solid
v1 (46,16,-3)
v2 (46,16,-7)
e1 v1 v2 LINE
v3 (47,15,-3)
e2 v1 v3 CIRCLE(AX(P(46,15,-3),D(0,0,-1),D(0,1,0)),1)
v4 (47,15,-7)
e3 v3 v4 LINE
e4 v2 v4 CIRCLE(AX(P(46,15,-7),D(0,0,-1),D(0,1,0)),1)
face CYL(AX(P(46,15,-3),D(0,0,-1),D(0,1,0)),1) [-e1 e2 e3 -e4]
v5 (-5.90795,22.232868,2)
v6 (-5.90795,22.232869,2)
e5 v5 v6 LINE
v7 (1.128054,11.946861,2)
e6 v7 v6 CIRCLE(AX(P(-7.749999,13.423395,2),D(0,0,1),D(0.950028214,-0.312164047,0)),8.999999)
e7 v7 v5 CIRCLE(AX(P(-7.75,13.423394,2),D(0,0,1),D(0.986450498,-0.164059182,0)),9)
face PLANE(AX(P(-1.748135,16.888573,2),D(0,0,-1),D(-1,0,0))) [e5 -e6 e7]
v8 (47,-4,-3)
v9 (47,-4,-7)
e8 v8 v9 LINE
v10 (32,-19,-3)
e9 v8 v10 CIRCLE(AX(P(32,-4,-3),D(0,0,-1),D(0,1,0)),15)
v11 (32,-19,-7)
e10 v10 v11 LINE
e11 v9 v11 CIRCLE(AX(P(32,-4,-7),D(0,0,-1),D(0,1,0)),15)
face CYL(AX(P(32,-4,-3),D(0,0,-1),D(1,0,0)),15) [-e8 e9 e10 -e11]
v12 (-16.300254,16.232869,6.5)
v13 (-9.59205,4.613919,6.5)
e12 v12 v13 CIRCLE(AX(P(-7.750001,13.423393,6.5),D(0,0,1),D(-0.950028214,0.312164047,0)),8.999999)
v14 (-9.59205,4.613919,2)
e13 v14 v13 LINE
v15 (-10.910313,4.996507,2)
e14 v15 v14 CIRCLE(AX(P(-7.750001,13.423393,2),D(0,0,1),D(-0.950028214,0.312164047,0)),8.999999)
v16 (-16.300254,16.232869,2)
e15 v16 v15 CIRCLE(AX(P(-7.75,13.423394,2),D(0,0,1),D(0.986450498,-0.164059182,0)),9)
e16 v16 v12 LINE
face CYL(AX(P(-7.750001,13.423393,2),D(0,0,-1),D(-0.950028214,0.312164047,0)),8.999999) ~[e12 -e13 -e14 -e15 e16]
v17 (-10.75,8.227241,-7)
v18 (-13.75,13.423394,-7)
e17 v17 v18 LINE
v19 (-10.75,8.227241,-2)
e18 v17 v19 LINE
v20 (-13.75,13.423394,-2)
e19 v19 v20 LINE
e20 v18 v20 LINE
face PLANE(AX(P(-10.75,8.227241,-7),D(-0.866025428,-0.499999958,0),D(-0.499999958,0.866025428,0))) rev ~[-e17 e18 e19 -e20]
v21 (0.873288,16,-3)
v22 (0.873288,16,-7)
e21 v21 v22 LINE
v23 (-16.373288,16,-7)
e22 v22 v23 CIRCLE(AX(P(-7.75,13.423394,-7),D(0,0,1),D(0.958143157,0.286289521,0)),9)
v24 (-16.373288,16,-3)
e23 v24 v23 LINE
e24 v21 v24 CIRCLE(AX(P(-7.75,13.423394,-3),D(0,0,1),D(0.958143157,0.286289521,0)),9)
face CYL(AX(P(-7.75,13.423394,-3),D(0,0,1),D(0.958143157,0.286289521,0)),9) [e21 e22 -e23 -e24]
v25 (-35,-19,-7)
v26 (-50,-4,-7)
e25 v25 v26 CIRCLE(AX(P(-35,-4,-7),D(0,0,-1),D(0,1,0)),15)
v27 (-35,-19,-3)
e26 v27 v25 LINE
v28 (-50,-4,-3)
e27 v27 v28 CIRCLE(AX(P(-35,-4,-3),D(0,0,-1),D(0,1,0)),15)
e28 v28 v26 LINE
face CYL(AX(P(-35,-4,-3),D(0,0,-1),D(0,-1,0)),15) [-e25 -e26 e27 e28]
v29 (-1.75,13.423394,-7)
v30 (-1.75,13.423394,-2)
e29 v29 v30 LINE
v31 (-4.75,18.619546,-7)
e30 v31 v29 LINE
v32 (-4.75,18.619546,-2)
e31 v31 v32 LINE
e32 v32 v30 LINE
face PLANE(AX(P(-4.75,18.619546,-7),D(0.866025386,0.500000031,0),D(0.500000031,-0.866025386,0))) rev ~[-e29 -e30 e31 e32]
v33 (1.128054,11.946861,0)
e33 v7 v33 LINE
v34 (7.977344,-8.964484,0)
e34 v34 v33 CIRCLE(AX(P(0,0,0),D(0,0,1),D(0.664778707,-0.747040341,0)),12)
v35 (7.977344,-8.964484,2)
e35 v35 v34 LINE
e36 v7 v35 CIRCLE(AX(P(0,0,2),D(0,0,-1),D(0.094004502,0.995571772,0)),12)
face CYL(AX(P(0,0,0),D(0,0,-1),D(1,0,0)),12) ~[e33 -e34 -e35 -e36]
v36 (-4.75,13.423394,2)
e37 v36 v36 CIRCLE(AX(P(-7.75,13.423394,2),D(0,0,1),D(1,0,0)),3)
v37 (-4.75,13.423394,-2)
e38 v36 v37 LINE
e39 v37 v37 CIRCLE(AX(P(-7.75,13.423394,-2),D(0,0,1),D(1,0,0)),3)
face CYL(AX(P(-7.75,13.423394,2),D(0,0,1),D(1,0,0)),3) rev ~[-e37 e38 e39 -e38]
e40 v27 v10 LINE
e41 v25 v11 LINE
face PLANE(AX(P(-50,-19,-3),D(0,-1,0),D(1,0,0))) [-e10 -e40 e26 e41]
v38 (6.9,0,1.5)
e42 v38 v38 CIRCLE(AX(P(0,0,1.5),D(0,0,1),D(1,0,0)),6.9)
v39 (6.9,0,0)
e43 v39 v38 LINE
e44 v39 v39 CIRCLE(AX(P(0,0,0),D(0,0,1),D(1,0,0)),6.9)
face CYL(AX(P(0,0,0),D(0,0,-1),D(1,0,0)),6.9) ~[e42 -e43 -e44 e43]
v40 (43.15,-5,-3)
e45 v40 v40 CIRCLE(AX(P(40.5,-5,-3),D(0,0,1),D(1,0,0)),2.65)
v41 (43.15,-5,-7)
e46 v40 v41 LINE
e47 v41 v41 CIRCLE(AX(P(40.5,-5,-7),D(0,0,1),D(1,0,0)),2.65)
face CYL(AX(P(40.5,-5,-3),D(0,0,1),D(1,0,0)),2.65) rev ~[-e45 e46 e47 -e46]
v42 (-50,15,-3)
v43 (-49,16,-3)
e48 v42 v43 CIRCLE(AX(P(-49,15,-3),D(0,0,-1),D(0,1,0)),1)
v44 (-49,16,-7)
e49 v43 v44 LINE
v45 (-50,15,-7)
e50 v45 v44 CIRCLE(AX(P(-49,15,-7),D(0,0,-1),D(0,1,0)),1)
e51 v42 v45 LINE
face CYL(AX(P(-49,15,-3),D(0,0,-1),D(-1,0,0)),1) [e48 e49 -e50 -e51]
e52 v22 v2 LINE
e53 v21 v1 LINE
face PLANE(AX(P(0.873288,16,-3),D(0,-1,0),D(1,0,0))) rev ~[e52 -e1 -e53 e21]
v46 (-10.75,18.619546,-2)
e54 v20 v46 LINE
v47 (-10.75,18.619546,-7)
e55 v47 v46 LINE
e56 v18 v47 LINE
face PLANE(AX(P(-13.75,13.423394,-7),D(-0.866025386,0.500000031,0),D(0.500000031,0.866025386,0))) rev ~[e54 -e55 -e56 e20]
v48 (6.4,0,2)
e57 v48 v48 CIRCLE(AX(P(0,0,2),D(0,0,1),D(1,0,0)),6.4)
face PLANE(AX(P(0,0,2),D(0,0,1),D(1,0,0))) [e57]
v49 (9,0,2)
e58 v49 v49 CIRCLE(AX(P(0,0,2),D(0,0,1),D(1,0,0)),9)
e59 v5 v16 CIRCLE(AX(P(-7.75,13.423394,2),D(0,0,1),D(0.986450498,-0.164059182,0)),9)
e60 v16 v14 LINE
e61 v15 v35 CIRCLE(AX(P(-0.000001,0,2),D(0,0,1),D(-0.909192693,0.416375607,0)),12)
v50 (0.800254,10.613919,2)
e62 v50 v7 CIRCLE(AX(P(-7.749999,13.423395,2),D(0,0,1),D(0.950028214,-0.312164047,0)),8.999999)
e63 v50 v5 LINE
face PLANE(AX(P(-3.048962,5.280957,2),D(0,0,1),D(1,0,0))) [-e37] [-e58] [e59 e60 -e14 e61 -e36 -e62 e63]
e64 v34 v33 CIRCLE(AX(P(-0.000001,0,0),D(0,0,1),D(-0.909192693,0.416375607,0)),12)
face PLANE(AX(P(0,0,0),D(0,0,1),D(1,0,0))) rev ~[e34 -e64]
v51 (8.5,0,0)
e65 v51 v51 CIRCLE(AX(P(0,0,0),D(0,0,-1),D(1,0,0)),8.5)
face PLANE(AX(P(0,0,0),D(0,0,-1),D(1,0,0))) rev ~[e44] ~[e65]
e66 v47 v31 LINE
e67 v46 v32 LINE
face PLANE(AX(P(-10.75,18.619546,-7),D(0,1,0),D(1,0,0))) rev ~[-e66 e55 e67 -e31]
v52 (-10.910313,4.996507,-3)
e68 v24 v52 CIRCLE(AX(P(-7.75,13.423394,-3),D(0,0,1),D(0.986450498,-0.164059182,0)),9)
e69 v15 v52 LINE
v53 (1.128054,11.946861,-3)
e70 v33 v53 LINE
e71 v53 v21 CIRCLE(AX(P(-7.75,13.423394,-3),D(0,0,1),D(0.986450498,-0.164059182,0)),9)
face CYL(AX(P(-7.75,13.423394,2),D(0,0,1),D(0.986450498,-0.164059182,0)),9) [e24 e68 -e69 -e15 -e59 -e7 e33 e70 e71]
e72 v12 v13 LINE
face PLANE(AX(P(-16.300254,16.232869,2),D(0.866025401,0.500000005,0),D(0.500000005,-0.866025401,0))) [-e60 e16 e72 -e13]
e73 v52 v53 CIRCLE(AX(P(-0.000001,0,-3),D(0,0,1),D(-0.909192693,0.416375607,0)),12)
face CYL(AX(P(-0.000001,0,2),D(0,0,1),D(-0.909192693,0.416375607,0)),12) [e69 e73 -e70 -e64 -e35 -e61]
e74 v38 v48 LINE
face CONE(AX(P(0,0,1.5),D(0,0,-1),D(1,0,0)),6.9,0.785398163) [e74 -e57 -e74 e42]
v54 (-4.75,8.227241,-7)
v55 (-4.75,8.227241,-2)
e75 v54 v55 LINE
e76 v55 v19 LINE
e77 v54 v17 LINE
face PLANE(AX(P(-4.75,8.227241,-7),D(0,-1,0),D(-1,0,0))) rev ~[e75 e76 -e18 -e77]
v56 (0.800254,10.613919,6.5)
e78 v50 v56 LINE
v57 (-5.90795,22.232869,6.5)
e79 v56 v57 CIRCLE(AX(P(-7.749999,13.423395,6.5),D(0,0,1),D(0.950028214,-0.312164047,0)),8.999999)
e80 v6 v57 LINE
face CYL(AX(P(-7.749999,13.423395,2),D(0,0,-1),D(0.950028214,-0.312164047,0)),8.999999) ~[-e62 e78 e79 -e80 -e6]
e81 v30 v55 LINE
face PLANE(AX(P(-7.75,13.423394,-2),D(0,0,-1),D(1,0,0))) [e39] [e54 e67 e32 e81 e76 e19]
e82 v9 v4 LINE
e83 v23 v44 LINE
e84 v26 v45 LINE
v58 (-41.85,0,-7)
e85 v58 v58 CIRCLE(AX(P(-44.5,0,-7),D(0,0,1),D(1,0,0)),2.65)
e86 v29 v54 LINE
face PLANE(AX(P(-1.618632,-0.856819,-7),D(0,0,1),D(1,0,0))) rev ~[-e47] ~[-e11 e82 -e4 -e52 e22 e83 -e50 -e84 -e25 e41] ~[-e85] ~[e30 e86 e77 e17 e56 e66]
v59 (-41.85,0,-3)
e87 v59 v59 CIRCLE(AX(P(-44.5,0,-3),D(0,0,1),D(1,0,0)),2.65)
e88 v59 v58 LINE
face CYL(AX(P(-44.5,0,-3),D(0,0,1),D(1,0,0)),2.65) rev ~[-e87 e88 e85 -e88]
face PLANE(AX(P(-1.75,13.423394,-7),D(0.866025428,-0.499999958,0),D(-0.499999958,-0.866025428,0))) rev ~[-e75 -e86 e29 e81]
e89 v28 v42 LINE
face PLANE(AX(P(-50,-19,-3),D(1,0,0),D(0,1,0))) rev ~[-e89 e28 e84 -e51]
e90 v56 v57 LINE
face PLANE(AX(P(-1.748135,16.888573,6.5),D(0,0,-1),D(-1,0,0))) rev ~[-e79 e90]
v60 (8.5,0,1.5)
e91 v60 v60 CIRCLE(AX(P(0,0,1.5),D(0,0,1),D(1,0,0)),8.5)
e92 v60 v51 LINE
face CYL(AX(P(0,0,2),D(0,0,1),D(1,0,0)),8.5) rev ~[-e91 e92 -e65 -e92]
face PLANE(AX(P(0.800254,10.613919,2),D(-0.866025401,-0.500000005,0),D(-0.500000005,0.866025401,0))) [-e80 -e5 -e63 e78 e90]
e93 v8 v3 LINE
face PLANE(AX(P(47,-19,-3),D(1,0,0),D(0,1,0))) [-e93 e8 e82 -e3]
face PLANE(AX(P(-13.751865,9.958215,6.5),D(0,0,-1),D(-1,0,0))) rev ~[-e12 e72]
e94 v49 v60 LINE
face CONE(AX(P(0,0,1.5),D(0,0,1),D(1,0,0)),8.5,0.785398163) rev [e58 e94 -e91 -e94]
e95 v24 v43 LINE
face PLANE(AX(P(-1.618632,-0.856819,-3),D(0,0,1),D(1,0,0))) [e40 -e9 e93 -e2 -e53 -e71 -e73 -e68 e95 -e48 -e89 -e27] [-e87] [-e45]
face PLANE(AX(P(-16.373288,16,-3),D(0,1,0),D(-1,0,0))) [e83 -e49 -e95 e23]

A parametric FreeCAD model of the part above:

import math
import FreeCAD as App
import Part
import Sketcher
Q = App.Units.Quantity


def edges_at(feature, points):
    """Names of the edges that pass closest to the given points."""
    edges = feature.Shape.Edges
    near = lambda p: min(range(len(edges)), key=lambda i: edges[i].distToShape(Part.Vertex(*p))[0])
    return sorted({f"Edge{near(p) + 1}" for p in points})


def add_polygon(sketch, points):
    """Adds a closed chain of lines whose ends are joined by coincident constraints."""
    first, n = sketch.GeometryCount, len(points)
    for a, b in zip(points, points[1:] + points[:1]):
        sketch.addGeometry(Part.LineSegment(App.Vector(*a, 0), App.Vector(*b, 0)), False)
    for i in range(n):
        sketch.addConstraint(Sketcher.Constraint("Coincident", first + i, 2, first + (i + 1) % n, 1))

doc = App.newDocument("Part")
body = doc.addObject("PartDesign::Body", "Body")

# Sketch on XY plane
sketch1 = body.newObject("Sketcher::SketchObject", "Sketch")
sketch1.AttachmentSupport = (doc.getObject("XY_Plane"), [""])
sketch1.MapMode = "FlatFace"
sketch1.addGeometry([
    Part.Circle(App.Vector(0, 0, 0), App.Vector(0, 0, 1), 12),
    Part.Circle(App.Vector(0, 0, 0), App.Vector(0, 0, 1), 8),
], False)
sketch1.addConstraint([
    Sketcher.Constraint("Coincident", 0, 3, -1, 1),
    Sketcher.Constraint("Coincident", 1, 3, -1, 1),
    Sketcher.Constraint("Diameter", 0, 24.0),
    Sketcher.Constraint("Diameter", 1, 17.0),
])
pad1 = body.newObject("PartDesign::Pad", "Pad")
pad1.Profile = sketch1
pad1.Length = 2

# Sketch on XY plane
sketch2 = body.newObject("Sketcher::SketchObject", "Sketch001")
sketch2.AttachmentSupport = (doc.getObject("XY_Plane"), [""])
sketch2.MapMode = "FlatFace"
sketch2.AttachmentOffset = App.Placement(App.Vector(0, 0, 2), App.Rotation())
sketch2.addGeometry([
    Part.ArcOfCircle(Part.Circle(App.Vector(-7.8, 13.4, 0), App.Vector(0, 0, 1), 9), math.radians(-9), math.radians(249)),
    Part.ArcOfCircle(Part.Circle(App.Vector(0, 0, 0), App.Vector(0, 0, 1), 12), math.radians(155), math.radians(445)),
    Part.Circle(App.Vector(0, 0, 0), App.Vector(0, 0, 1), 8.5),
    Part.Circle(App.Vector(-7.8, 13.4, 0), App.Vector(0, 0, 1), 3),
], False)
sketch2.addConstraint([
    Sketcher.Constraint("Coincident", 0, 1, 1, 2),
    Sketcher.Constraint("Coincident", 1, 1, 0, 2),
    Sketcher.Constraint("Coincident", 1, 3, -1, 1),
    Sketcher.Constraint("Coincident", 2, 3, -1, 1),
    Sketcher.Constraint("Coincident", 3, 3, 0, 3),
    Sketcher.Constraint("Diameter", 2, 17.0),
    Sketcher.Constraint("Diameter", 3, 6.0),
    Sketcher.Constraint("Radius", 0, 9.0),
    Sketcher.Constraint("Radius", 1, 12.0),
    Sketcher.Constraint("DistanceX", 0, 3, -1, 1, 7.75),
    Sketcher.Constraint("DistanceY", -1, 1, 0, 3, 13.423394),
])
pad2 = body.newObject("PartDesign::Pad", "Pad001")
pad2.Profile = sketch2
pad2.Length = 5
pad2.Reversed = True

# Sketch on XY plane
sketch3 = body.newObject("Sketcher::SketchObject", "Sketch002")
sketch3.AttachmentSupport = (doc.getObject("XY_Plane"), [""])
sketch3.MapMode = "FlatFace"
sketch3.AttachmentOffset = App.Placement(App.Vector(0, 0, -3), App.Rotation())
sketch3.addGeometry(Part.Circle(App.Vector(0, 0, 0), App.Vector(0, 0, 1), 8), False)
sketch3.addConstraint([
    Sketcher.Constraint("Coincident", 0, 3, -1, 1),
    Sketcher.Constraint("Diameter", 0, 17.0),
])
pad3 = body.newObject("PartDesign::Pad", "Pad002")
pad3.Profile = sketch3
pad3.Length = 3

# Sketch on XY plane
sketch4 = body.newObject("Sketcher::SketchObject", "Sketch003")
sketch4.AttachmentSupport = (doc.getObject("XY_Plane"), [""])
sketch4.MapMode = "FlatFace"
sketch4.addGeometry(Part.Circle(App.Vector(0, 0, 0), App.Vector(0, 0, 1), 7), False)
sketch4.addConstraint([
    Sketcher.Constraint("Coincident", 0, 3, -1, 1),
    Sketcher.Constraint("Diameter", 0, 13.8),
])
pad4 = body.newObject("PartDesign::Pad", "Pad003")
pad4.Profile = sketch4
pad4.Length = 2

# Sketch on XY plane
sketch5 = body.newObject("Sketcher::SketchObject", "Sketch004")
sketch5.AttachmentSupport = (doc.getObject("XY_Plane"), [""])
sketch5.MapMode = "FlatFace"
sketch5.AttachmentOffset = App.Placement(App.Vector(0, 0, 2), App.Rotation())
sketch5.addGeometry([
    Part.LineSegment(App.Vector(-10, 5, 0), App.Vector(-16, 16, 0)),
    Part.ArcOfCircle(Part.Circle(App.Vector(-8, 13, 0), App.Vector(0, 0, 1), 9), math.radians(162), math.radians(258)),
    Part.LineSegment(App.Vector(-6, 22, 0), App.Vector(1, 11, 0)),
    Part.ArcOfCircle(Part.Circle(App.Vector(-8, 13, 0), App.Vector(0, 0, 1), 9), math.radians(-18), math.radians(78)),
], False)
sketch5.addConstraint([
    Sketcher.Constraint("Coincident", 0, 1, 1, 2),
    Sketcher.Constraint("Coincident", 1, 1, 0, 2),
    Sketcher.Constraint("Coincident", 2, 1, 3, 2),
    Sketcher.Constraint("Coincident", 3, 1, 2, 2),
    Sketcher.Constraint("Coincident", 3, 3, 1, 3),
    Sketcher.Constraint("Equal", 1, 3),
    Sketcher.Constraint("Parallel", 0, 2),
    Sketcher.Constraint("Equal", 0, 2),
    Sketcher.Constraint("Radius", 1, 8.999999),
    Sketcher.Constraint("Angle", 0, Q("120 deg")),
    Sketcher.Constraint("DistanceY", 1, 1, 2, 1, 6.0),
    Sketcher.Constraint("DistanceX", 1, 3, -1, 1, 7.750001),
    Sketcher.Constraint("DistanceY", -1, 1, 0, 1, 4.613919),
])
pad5 = body.newObject("PartDesign::Pad", "Pad004")
pad5.Profile = sketch5
pad5.Length = 4.5

# Sketch on XY plane
sketch6 = body.newObject("Sketcher::SketchObject", "Sketch005")
sketch6.AttachmentSupport = (doc.getObject("XY_Plane"), [""])
sketch6.MapMode = "FlatFace"
sketch6.AttachmentOffset = App.Placement(App.Vector(0, 0, -3), App.Rotation())
sketch6.addGeometry(Part.Circle(App.Vector(-7.8, 13.4, 0), App.Vector(0, 0, 1), 3), False)
sketch6.addConstraint([
    Sketcher.Constraint("Diameter", 0, 6.0),
    Sketcher.Constraint("DistanceX", 0, 3, -1, 1, 7.75),
    Sketcher.Constraint("DistanceY", -1, 1, 0, 3, 13.423394),
])
pocket1 = body.newObject("PartDesign::Pocket", "Pocket")
pocket1.Profile = sketch6
pocket1.Length = 5

# Sketch on XY plane
sketch7 = body.newObject("Sketcher::SketchObject", "Sketch006")
sketch7.AttachmentSupport = (doc.getObject("XY_Plane"), [""])
sketch7.MapMode = "FlatFace"
sketch7.AttachmentOffset = App.Placement(App.Vector(0, 0, -3), App.Rotation())
sketch7.addGeometry([
    Part.ArcOfCircle(Part.Circle(App.Vector(-7.8, 13.4, 0), App.Vector(0, 0, 1), 9), math.radians(17), math.radians(163)),  # 0
    Part.LineSegment(App.Vector(-16.4, 16, 0), App.Vector(-50, 16, 0)),  # 1
    Part.LineSegment(App.Vector(-50, 16, 0), App.Vector(-50, -19, 0)),  # 2
    Part.LineSegment(App.Vector(-50, -19, 0), App.Vector(47, -19, 0)),  # 3
    Part.LineSegment(App.Vector(47, -19, 0), App.Vector(47, 16, 0)),  # 4
    Part.LineSegment(App.Vector(47, 16, 0), App.Vector(0.9, 16, 0)),  # 5
    Part.Circle(App.Vector(40.5, -5, 0), App.Vector(0, 0, 1), 2.6),  # 6
    Part.Circle(App.Vector(-44.5, 0, 0), App.Vector(0, 0, 1), 2.6),  # 7
], False)
sketch7.addConstraint([
    Sketcher.Constraint("Coincident", 0, 2, 1, 1),
    Sketcher.Constraint("Coincident", 1, 2, 2, 1),
    Sketcher.Constraint("Coincident", 2, 2, 3, 1),
    Sketcher.Constraint("Coincident", 3, 2, 4, 1),
    Sketcher.Constraint("Coincident", 4, 2, 5, 1),
    Sketcher.Constraint("Coincident", 5, 2, 0, 1),
    Sketcher.Constraint("Horizontal", 1),
    Sketcher.Constraint("Vertical", 2),
    Sketcher.Constraint("Horizontal", 3),
    Sketcher.Constraint("Vertical", 4),
    Sketcher.Constraint("Horizontal", 5),
    Sketcher.Constraint("Equal", 6, 7),
    Sketcher.Constraint("PointOnObject", 7, 3, -1),
    Sketcher.Constraint("Horizontal", 1, 2, 4, 2),
    Sketcher.Constraint("Radius", 0, 9.0),
    Sketcher.Constraint("Diameter", 6, 5.3),
    Sketcher.Constraint("DistanceX", 3, 1, 3, 2, 97.0),
    Sketcher.Constraint("DistanceY", 2, 2, 2, 1, 35.0),
    Sketcher.Constraint("DistanceY", 6, 3, -1, 1, 5.0),
    Sketcher.Constraint("DistanceY", -1, 1, 0, 2, 16.0),
    Sketcher.Constraint("DistanceX", 1, 2, -1, 1, 50.0),
    Sketcher.Constraint("DistanceX", 7, 3, 6, 3, 85.0),
    Sketcher.Constraint("DistanceX", -1, 1, 6, 3, 40.5),
    Sketcher.Constraint("DistanceX", 0, 3, -1, 1, 7.75),
    Sketcher.Constraint("DistanceX", 1, 2, 1, 1, 33.626712),
])
pad6 = body.newObject("PartDesign::Pad", "Pad005")
pad6.Profile = sketch7
pad6.Length = 4
pad6.Reversed = True

# Sketch on XY plane
sketch8 = body.newObject("Sketcher::SketchObject", "Sketch007")
sketch8.AttachmentSupport = (doc.getObject("XY_Plane"), [""])
sketch8.MapMode = "FlatFace"
sketch8.AttachmentOffset = App.Placement(App.Vector(0, 0, -7), App.Rotation())
add_polygon(sketch8, [(-5, 8), (-11, 8), (-14, 13), (-11, 19), (-5, 19), (-2, 13)])  # lines 0-5
sketch8.addConstraint([
    Sketcher.Constraint("Horizontal", 0),
    Sketcher.Constraint("Horizontal", 3),
    Sketcher.Constraint("Parallel", 1, 4),
    Sketcher.Constraint("Parallel", 2, 5),
    Sketcher.Constraint("Horizontal", 1, 2, 4, 2),
    Sketcher.Constraint("Vertical", 0, 2, 2, 2),
    Sketcher.Constraint("Vertical", 3, 2, 5, 2),
    Sketcher.Constraint("DistanceX", 0, 2, 0, 1, 6.0),
    Sketcher.Constraint("Angle", 1, Q("119.999997 deg")),
    Sketcher.Constraint("Distance", 1, 6.0),
    Sketcher.Constraint("DistanceX", 0, 2, -1, 1, 10.75),
    Sketcher.Constraint("DistanceY", -1, 1, 0, 2, 8.227241),
])
pocket2 = body.newObject("PartDesign::Pocket", "Pocket001")
pocket2.Profile = sketch8
pocket2.Length = 5
pocket2.Reversed = True
doc.recompute()

chamfer = body.newObject("PartDesign::Chamfer", "Chamfer")
chamfer.Base = (pocket2, edges_at(pocket2, [(-6.9, 0, 2), (-8.5, 0, 2)]))
chamfer.Size = 0.5
doc.recompute()

fillet = body.newObject("PartDesign::Fillet", "Fillet")
fillet.Base = (chamfer, edges_at(chamfer, [(-50, 16, -5), (47, 16, -5)]))
fillet.Radius = 1
doc.recompute()

fillet2 = body.newObject("PartDesign::Fillet", "Fillet001")
fillet2.Base = (fillet, edges_at(fillet, [(-50, -19, -5), (47, -19, -5)]))
fillet2.Radius = 15

doc.recompute()
